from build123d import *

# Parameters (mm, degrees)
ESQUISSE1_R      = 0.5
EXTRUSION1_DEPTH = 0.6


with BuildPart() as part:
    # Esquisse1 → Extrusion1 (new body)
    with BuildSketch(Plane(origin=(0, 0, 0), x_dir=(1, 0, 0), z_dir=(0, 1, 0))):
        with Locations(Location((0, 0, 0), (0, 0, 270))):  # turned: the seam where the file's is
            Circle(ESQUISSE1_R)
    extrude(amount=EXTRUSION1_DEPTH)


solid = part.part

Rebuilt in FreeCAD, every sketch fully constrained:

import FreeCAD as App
import Part
import Sketcher
from FreeCAD import Vector
Q = App.Units.Quantity

doc = App.newDocument("Part")
body = doc.addObject("PartDesign::Body", "Body")

sketch1 = doc.addObject("Sketcher::SketchObject", "Sketch")
body.addObject(sketch1)
sketch1.AttachmentSupport = (doc.XZ_Plane, [""])
sketch1.MapMode = "FlatFace"
sketch1.addGeometry(Part.Circle(Vector(0, 0, 0), Vector(0, 0, 1), 0.5), False)
sketch1.addConstraint(Sketcher.Constraint("Coincident", 0, 3, -1, 1))
sketch1.addConstraint(Sketcher.Constraint("Diameter", 0, Q("1 mm")))
pad1 = doc.addObject("PartDesign::Pad", "Pad")
body.addObject(pad1)
pad1.Profile = sketch1
pad1.Length = 0.6
pad1.Reversed = True

doc.recompute()
